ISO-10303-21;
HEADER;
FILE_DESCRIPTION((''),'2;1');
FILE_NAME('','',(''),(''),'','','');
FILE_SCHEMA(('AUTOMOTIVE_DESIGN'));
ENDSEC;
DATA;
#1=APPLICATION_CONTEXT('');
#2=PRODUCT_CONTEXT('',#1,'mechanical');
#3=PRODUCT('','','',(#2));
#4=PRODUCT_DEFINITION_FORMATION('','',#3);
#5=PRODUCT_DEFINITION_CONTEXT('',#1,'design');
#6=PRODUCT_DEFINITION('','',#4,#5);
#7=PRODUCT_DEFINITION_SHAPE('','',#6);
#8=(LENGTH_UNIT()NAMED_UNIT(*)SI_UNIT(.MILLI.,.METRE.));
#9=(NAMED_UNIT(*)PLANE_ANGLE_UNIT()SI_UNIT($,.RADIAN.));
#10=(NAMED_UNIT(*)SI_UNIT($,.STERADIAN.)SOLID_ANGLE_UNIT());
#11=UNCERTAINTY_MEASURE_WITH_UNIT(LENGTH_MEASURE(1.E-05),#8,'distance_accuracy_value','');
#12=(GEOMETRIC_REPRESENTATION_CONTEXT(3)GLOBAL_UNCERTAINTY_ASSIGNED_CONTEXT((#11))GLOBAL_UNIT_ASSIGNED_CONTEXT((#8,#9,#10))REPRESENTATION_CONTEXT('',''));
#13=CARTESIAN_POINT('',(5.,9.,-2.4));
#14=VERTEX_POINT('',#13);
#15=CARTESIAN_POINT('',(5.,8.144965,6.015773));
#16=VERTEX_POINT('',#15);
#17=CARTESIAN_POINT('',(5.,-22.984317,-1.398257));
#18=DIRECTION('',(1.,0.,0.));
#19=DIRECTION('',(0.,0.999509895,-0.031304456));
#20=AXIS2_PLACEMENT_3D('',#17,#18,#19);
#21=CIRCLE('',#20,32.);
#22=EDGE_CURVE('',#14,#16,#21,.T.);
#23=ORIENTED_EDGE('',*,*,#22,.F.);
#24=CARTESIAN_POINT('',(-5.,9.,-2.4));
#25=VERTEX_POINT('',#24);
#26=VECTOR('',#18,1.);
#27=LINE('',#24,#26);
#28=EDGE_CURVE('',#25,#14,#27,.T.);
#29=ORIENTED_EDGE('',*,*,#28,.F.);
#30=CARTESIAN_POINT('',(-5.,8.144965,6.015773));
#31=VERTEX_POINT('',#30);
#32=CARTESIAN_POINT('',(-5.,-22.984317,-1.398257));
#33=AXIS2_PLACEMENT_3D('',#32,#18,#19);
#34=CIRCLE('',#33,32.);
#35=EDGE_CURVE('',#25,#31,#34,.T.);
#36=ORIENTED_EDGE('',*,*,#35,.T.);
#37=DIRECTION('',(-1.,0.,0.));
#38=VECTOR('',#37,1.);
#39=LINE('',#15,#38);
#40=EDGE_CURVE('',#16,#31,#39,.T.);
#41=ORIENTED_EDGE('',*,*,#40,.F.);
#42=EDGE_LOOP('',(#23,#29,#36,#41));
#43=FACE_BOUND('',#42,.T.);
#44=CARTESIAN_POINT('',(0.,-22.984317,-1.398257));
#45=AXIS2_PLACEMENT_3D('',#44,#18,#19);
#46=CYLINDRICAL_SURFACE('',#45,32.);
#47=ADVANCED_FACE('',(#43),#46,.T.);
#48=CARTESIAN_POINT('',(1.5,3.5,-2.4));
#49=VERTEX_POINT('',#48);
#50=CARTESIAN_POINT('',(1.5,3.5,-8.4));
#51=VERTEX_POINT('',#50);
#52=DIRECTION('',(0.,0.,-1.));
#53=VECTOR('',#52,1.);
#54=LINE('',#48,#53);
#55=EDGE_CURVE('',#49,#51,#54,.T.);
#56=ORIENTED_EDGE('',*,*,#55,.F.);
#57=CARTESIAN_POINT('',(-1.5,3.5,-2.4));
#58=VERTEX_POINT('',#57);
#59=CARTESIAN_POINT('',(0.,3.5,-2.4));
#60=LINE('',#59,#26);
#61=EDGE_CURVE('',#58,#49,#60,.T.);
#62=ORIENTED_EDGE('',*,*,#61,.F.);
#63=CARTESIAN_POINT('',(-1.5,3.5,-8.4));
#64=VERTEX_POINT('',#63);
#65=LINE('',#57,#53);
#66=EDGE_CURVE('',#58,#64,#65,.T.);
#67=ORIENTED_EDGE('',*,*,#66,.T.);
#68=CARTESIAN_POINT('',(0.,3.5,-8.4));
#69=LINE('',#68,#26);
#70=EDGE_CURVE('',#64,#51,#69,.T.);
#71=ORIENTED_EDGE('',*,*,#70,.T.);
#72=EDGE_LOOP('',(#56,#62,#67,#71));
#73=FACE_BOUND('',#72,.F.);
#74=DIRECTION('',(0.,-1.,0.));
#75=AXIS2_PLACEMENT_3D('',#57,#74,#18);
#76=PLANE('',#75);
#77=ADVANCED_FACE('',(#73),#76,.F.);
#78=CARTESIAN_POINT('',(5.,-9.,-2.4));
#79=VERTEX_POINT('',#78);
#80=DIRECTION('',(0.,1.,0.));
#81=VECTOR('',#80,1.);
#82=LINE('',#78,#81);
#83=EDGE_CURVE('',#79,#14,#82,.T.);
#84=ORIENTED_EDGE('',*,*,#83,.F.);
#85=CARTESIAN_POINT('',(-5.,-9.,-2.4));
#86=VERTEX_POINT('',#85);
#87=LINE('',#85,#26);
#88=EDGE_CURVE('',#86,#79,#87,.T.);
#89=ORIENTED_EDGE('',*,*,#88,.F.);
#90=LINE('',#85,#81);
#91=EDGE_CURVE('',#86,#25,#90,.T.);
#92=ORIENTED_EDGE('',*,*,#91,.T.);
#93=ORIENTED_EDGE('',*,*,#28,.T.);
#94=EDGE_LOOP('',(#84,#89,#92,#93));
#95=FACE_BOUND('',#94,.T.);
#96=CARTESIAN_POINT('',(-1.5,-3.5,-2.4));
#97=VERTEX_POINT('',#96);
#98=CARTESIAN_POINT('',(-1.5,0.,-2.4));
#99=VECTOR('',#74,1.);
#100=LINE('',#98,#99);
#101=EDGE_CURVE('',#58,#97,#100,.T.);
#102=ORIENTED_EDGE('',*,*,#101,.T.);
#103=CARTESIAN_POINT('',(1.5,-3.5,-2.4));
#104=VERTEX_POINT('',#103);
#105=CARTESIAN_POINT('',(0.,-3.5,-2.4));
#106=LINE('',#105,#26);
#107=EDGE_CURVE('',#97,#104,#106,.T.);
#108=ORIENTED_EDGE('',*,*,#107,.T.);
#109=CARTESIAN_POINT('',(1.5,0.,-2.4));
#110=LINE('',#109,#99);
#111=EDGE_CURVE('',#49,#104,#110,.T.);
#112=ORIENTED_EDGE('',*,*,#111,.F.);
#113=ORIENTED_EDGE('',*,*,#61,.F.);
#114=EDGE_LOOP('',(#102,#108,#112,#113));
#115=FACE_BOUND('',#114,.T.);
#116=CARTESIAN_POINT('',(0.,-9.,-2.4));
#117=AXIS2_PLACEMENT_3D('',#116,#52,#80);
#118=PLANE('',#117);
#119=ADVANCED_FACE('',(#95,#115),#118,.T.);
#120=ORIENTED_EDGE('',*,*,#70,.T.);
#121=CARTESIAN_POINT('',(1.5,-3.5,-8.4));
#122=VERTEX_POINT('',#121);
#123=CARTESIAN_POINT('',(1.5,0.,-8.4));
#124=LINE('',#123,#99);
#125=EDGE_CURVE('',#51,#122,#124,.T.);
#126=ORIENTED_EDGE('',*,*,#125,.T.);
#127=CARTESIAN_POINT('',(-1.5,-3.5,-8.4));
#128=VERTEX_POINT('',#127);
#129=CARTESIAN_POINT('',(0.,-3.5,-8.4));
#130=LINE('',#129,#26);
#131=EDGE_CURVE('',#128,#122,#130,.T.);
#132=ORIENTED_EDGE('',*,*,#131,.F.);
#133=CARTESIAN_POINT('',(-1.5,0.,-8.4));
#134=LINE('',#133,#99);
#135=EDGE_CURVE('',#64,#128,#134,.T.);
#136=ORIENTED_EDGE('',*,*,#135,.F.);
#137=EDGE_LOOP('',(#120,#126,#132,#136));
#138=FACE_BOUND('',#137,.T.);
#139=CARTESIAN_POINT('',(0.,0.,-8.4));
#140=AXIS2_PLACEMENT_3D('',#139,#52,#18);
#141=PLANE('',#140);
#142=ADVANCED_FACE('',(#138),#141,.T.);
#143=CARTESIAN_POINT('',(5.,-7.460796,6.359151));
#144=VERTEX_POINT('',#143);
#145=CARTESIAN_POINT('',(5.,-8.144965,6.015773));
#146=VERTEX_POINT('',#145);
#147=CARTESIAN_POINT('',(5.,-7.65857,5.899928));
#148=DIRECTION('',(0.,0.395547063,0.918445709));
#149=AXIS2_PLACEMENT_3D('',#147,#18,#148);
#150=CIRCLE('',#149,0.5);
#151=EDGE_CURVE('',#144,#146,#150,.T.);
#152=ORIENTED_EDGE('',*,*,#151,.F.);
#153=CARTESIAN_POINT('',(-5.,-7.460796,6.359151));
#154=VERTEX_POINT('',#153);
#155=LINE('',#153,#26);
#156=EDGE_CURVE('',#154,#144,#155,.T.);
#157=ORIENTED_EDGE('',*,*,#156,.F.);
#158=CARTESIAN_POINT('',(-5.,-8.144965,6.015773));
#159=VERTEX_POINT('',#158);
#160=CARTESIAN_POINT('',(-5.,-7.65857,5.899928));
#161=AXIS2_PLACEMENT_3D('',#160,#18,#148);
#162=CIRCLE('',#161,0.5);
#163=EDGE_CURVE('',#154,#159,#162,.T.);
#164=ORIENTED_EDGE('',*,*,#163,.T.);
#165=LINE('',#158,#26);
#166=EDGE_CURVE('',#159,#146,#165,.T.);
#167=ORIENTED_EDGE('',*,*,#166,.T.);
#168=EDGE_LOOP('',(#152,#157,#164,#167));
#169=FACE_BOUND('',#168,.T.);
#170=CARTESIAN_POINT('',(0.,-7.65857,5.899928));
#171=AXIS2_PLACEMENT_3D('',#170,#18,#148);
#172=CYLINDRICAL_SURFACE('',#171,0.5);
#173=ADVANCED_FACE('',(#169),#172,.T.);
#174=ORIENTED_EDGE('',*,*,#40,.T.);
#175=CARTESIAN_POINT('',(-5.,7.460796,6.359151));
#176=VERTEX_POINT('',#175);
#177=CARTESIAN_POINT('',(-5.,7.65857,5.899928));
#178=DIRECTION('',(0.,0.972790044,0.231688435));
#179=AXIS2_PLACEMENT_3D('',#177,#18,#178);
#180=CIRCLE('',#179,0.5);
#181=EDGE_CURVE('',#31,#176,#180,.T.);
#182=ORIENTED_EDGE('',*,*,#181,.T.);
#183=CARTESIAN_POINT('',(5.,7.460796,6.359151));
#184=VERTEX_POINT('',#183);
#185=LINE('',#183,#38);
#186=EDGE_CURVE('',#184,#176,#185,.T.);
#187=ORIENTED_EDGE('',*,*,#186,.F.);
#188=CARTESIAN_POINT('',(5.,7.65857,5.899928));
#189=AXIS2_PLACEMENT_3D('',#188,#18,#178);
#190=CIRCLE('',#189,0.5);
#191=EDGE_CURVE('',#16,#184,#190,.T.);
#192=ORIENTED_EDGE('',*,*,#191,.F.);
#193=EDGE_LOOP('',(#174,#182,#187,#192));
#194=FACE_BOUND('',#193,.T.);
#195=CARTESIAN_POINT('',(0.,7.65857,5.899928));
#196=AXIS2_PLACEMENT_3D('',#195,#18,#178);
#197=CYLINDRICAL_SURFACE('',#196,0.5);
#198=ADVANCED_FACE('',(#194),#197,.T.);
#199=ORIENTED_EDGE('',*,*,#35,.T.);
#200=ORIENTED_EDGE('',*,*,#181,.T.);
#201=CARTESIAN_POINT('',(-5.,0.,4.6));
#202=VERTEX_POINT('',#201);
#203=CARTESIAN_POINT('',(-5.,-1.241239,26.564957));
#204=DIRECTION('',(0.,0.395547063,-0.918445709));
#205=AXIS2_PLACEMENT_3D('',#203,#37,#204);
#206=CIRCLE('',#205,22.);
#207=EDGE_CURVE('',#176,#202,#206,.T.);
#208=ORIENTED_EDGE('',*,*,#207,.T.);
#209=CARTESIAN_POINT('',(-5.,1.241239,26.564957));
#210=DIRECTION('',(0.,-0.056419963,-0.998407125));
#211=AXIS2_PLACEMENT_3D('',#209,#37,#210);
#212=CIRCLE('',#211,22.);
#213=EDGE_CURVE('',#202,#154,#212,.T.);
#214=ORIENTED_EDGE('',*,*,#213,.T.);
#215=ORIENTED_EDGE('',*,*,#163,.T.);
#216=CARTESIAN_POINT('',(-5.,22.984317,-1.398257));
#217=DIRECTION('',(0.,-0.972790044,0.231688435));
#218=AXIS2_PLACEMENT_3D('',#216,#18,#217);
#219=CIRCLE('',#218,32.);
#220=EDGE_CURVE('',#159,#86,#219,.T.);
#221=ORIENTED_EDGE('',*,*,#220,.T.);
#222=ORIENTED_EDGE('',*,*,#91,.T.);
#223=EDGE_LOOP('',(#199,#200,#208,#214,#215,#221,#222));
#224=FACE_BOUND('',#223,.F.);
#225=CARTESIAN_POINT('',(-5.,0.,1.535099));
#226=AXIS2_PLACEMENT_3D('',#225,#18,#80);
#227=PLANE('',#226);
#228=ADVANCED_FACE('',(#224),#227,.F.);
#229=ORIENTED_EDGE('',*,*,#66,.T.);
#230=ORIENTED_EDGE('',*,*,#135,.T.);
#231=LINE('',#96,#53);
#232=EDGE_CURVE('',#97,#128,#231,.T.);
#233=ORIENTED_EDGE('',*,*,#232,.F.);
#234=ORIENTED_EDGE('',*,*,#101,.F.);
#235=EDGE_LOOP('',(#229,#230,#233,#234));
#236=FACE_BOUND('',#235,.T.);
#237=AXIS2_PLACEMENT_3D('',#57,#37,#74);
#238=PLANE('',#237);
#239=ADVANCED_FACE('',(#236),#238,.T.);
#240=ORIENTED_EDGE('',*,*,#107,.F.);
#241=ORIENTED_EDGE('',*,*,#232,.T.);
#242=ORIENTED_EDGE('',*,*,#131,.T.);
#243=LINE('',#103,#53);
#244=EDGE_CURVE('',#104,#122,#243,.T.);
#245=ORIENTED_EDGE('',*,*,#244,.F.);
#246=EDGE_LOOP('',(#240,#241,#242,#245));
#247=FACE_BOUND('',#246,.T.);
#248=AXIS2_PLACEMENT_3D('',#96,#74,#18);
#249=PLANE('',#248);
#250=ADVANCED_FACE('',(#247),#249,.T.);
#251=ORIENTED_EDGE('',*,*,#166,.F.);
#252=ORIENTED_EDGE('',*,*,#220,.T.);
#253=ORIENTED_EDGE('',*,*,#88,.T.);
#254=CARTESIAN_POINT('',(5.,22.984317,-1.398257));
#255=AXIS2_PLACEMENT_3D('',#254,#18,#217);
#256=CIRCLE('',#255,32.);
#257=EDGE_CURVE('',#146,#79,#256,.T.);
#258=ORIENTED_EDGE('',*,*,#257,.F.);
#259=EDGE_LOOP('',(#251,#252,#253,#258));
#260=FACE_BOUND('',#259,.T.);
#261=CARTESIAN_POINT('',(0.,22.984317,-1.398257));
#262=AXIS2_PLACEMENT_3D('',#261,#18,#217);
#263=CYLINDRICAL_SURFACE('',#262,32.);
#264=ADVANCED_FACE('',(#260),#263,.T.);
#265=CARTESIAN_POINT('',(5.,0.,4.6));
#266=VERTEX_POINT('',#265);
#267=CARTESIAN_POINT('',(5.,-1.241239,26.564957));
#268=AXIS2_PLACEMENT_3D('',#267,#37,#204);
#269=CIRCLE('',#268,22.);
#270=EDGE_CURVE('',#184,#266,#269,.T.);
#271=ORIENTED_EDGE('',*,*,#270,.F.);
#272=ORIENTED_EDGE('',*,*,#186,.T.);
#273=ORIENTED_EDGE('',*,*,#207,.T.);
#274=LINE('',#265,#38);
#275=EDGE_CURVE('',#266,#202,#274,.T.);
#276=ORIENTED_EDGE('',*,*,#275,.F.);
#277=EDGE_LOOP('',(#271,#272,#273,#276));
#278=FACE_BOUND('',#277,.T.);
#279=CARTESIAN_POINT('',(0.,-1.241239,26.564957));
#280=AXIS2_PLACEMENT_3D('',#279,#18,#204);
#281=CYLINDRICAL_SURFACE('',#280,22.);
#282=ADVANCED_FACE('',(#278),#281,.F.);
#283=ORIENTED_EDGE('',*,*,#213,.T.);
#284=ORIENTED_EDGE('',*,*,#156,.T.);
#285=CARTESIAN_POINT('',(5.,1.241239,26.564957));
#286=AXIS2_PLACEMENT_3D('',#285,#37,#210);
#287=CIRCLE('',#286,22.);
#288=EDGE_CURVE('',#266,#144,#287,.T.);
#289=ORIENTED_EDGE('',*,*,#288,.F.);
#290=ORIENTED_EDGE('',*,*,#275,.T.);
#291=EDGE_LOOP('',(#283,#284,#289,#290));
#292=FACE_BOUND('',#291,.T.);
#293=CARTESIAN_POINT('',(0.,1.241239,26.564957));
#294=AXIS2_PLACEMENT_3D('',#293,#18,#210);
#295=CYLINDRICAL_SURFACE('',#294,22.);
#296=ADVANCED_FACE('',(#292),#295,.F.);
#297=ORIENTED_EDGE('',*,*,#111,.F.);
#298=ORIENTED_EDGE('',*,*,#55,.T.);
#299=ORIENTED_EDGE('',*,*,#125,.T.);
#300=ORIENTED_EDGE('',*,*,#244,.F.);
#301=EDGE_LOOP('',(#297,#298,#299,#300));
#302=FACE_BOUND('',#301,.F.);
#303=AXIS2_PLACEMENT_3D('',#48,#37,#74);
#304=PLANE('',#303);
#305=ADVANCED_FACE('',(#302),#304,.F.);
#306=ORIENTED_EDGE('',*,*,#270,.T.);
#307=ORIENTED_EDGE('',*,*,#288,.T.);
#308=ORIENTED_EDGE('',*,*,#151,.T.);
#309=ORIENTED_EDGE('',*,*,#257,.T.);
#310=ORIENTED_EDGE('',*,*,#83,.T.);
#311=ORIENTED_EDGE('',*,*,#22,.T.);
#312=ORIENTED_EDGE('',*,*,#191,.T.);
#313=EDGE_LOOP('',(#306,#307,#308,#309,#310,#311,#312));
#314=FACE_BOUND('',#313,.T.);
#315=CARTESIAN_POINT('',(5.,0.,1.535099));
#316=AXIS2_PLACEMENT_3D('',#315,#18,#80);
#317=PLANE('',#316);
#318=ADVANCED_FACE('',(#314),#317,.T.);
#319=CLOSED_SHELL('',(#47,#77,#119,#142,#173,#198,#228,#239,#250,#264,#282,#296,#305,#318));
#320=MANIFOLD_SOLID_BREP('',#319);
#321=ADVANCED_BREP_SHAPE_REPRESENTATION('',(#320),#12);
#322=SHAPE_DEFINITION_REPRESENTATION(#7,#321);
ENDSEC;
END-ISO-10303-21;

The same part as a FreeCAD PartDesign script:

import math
import FreeCAD as App
import Part
import Sketcher

V = App.Vector
Q = App.Units.Quantity

doc = App.newDocument("Part")
body = doc.addObject("PartDesign::Body", "Body")

# Sketch on YZ plane
sketch1 = body.newObject("Sketcher::SketchObject", "Sketch")
sketch1.AttachmentSupport = (doc.getObject("YZ_Plane"), [""])
sketch1.MapMode = "FlatFace"
sketch1.addGeometry([
    Part.ArcOfCircle(Part.Circle(V(1.2, 26.6, 0), V(0, 0, 1), 22), math.radians(-113), math.radians(-93)),  # 0
    Part.ArcOfCircle(Part.Circle(V(-7.7, 5.9, 0), V(0, 0, 1), 0.5), math.radians(67), math.radians(167)),  # 1
    Part.ArcOfCircle(Part.Circle(V(23, -1.4, 0), V(0, 0, 1), 32), math.radians(166.6), math.radians(181.79)),  # 2
    Part.LineSegment(V(-9, -2.4, 0), V(9, -2.4, 0)),  # 3
    Part.ArcOfCircle(Part.Circle(V(-23, -1.4, 0), V(0, 0, 1), 32), math.radians(-1.79), math.radians(13.4)),  # 4
    Part.ArcOfCircle(Part.Circle(V(7.7, 5.9, 0), V(0, 0, 1), 0.5), math.radians(13), math.radians(113)),  # 5
    Part.ArcOfCircle(Part.Circle(V(-1.2, 26.6, 0), V(0, 0, 1), 22), math.radians(-87), math.radians(-67)),  # 6
], False)
sketch1.addConstraint([
    Sketcher.Constraint("Tangent", 0, 1, 1, 1),
    Sketcher.Constraint("Tangent", 1, 2, 2, 1),
    Sketcher.Constraint("Coincident", 2, 2, 3, 1),
    Sketcher.Constraint("Coincident", 3, 2, 4, 1),
    Sketcher.Constraint("Tangent", 4, 2, 5, 1),
    Sketcher.Constraint("Tangent", 5, 2, 6, 2),
    Sketcher.Constraint("Coincident", 6, 1, 0, 2),
    Sketcher.Constraint("Horizontal", 3),
    Sketcher.Constraint("Equal", 2, 4),
    Sketcher.Constraint("Equal", 1, 5),
    Sketcher.Constraint("Equal", 0, 6),
    Sketcher.Constraint("Symmetric", 2, 3, 4, 3, -2),
    Sketcher.Constraint("Symmetric", 0, 3, 6, 3, -2),
    Sketcher.Constraint("Radius", 0, Q("22 mm")),
    Sketcher.Constraint("Radius", 2, Q("32 mm")),
    Sketcher.Constraint("Radius", 1, Q("0.5 mm")),
    Sketcher.Constraint("DistanceX", 3, 1, 3, 2, Q("18 mm")),
    Sketcher.Constraint("DistanceY", 2, 2, -1, 1, Q("2.4 mm")),
    Sketcher.Constraint("DistanceY", -1, 1, 6, 1, Q("4.6 mm")),
    Sketcher.Constraint("DistanceX", -1, 1, 0, 3, Q("1.241239 mm")),
    Sketcher.Constraint("DistanceX", 1, 3, -1, 1, Q("7.65857 mm")),
])
pad1 = body.newObject("PartDesign::Pad", "Pad")
pad1.Profile = sketch1
pad1.Length = 10
pad1.Midplane = True

# Sketch on XY plane
sketch2 = body.newObject("Sketcher::SketchObject", "Sketch001")
sketch2.AttachmentSupport = (doc.getObject("XY_Plane"), [""])
sketch2.MapMode = "FlatFace"
sketch2.AttachmentOffset = App.Placement(V(0, 0, -2.4), App.Rotation())
sketch2.addGeometry([
    Part.LineSegment(V(-1.5, -3.5, 0), V(-1.5, 3.5, 0)),
    Part.LineSegment(V(-1.5, 3.5, 0), V(1.5, 3.5, 0)),
    Part.LineSegment(V(1.5, 3.5, 0), V(1.5, -3.5, 0)),
    Part.LineSegment(V(1.5, -3.5, 0), V(-1.5, -3.5, 0)),
], False)
sketch2.addConstraint([
    Sketcher.Constraint("Coincident", 0, 2, 1, 1),
    Sketcher.Constraint("Coincident", 1, 2, 2, 1),
    Sketcher.Constraint("Coincident", 2, 2, 3, 1),
    Sketcher.Constraint("Coincident", 3, 2, 0, 1),
    Sketcher.Constraint("Vertical", 0),
    Sketcher.Constraint("Horizontal", 1),
    Sketcher.Constraint("Vertical", 2),
    Sketcher.Constraint("Horizontal", 3),
    Sketcher.Constraint("Symmetric", 0, 2, 2, 2, -1, 1),
    Sketcher.Constraint("DistanceX", 1, 1, 1, 2, Q("3 mm")),
    Sketcher.Constraint("DistanceY", 0, 1, 0, 2, Q("7 mm")),
])
pad2 = body.newObject("PartDesign::Pad", "Pad001")
pad2.Profile = sketch2
pad2.Length = 6
pad2.Reversed = True

doc.recompute()
